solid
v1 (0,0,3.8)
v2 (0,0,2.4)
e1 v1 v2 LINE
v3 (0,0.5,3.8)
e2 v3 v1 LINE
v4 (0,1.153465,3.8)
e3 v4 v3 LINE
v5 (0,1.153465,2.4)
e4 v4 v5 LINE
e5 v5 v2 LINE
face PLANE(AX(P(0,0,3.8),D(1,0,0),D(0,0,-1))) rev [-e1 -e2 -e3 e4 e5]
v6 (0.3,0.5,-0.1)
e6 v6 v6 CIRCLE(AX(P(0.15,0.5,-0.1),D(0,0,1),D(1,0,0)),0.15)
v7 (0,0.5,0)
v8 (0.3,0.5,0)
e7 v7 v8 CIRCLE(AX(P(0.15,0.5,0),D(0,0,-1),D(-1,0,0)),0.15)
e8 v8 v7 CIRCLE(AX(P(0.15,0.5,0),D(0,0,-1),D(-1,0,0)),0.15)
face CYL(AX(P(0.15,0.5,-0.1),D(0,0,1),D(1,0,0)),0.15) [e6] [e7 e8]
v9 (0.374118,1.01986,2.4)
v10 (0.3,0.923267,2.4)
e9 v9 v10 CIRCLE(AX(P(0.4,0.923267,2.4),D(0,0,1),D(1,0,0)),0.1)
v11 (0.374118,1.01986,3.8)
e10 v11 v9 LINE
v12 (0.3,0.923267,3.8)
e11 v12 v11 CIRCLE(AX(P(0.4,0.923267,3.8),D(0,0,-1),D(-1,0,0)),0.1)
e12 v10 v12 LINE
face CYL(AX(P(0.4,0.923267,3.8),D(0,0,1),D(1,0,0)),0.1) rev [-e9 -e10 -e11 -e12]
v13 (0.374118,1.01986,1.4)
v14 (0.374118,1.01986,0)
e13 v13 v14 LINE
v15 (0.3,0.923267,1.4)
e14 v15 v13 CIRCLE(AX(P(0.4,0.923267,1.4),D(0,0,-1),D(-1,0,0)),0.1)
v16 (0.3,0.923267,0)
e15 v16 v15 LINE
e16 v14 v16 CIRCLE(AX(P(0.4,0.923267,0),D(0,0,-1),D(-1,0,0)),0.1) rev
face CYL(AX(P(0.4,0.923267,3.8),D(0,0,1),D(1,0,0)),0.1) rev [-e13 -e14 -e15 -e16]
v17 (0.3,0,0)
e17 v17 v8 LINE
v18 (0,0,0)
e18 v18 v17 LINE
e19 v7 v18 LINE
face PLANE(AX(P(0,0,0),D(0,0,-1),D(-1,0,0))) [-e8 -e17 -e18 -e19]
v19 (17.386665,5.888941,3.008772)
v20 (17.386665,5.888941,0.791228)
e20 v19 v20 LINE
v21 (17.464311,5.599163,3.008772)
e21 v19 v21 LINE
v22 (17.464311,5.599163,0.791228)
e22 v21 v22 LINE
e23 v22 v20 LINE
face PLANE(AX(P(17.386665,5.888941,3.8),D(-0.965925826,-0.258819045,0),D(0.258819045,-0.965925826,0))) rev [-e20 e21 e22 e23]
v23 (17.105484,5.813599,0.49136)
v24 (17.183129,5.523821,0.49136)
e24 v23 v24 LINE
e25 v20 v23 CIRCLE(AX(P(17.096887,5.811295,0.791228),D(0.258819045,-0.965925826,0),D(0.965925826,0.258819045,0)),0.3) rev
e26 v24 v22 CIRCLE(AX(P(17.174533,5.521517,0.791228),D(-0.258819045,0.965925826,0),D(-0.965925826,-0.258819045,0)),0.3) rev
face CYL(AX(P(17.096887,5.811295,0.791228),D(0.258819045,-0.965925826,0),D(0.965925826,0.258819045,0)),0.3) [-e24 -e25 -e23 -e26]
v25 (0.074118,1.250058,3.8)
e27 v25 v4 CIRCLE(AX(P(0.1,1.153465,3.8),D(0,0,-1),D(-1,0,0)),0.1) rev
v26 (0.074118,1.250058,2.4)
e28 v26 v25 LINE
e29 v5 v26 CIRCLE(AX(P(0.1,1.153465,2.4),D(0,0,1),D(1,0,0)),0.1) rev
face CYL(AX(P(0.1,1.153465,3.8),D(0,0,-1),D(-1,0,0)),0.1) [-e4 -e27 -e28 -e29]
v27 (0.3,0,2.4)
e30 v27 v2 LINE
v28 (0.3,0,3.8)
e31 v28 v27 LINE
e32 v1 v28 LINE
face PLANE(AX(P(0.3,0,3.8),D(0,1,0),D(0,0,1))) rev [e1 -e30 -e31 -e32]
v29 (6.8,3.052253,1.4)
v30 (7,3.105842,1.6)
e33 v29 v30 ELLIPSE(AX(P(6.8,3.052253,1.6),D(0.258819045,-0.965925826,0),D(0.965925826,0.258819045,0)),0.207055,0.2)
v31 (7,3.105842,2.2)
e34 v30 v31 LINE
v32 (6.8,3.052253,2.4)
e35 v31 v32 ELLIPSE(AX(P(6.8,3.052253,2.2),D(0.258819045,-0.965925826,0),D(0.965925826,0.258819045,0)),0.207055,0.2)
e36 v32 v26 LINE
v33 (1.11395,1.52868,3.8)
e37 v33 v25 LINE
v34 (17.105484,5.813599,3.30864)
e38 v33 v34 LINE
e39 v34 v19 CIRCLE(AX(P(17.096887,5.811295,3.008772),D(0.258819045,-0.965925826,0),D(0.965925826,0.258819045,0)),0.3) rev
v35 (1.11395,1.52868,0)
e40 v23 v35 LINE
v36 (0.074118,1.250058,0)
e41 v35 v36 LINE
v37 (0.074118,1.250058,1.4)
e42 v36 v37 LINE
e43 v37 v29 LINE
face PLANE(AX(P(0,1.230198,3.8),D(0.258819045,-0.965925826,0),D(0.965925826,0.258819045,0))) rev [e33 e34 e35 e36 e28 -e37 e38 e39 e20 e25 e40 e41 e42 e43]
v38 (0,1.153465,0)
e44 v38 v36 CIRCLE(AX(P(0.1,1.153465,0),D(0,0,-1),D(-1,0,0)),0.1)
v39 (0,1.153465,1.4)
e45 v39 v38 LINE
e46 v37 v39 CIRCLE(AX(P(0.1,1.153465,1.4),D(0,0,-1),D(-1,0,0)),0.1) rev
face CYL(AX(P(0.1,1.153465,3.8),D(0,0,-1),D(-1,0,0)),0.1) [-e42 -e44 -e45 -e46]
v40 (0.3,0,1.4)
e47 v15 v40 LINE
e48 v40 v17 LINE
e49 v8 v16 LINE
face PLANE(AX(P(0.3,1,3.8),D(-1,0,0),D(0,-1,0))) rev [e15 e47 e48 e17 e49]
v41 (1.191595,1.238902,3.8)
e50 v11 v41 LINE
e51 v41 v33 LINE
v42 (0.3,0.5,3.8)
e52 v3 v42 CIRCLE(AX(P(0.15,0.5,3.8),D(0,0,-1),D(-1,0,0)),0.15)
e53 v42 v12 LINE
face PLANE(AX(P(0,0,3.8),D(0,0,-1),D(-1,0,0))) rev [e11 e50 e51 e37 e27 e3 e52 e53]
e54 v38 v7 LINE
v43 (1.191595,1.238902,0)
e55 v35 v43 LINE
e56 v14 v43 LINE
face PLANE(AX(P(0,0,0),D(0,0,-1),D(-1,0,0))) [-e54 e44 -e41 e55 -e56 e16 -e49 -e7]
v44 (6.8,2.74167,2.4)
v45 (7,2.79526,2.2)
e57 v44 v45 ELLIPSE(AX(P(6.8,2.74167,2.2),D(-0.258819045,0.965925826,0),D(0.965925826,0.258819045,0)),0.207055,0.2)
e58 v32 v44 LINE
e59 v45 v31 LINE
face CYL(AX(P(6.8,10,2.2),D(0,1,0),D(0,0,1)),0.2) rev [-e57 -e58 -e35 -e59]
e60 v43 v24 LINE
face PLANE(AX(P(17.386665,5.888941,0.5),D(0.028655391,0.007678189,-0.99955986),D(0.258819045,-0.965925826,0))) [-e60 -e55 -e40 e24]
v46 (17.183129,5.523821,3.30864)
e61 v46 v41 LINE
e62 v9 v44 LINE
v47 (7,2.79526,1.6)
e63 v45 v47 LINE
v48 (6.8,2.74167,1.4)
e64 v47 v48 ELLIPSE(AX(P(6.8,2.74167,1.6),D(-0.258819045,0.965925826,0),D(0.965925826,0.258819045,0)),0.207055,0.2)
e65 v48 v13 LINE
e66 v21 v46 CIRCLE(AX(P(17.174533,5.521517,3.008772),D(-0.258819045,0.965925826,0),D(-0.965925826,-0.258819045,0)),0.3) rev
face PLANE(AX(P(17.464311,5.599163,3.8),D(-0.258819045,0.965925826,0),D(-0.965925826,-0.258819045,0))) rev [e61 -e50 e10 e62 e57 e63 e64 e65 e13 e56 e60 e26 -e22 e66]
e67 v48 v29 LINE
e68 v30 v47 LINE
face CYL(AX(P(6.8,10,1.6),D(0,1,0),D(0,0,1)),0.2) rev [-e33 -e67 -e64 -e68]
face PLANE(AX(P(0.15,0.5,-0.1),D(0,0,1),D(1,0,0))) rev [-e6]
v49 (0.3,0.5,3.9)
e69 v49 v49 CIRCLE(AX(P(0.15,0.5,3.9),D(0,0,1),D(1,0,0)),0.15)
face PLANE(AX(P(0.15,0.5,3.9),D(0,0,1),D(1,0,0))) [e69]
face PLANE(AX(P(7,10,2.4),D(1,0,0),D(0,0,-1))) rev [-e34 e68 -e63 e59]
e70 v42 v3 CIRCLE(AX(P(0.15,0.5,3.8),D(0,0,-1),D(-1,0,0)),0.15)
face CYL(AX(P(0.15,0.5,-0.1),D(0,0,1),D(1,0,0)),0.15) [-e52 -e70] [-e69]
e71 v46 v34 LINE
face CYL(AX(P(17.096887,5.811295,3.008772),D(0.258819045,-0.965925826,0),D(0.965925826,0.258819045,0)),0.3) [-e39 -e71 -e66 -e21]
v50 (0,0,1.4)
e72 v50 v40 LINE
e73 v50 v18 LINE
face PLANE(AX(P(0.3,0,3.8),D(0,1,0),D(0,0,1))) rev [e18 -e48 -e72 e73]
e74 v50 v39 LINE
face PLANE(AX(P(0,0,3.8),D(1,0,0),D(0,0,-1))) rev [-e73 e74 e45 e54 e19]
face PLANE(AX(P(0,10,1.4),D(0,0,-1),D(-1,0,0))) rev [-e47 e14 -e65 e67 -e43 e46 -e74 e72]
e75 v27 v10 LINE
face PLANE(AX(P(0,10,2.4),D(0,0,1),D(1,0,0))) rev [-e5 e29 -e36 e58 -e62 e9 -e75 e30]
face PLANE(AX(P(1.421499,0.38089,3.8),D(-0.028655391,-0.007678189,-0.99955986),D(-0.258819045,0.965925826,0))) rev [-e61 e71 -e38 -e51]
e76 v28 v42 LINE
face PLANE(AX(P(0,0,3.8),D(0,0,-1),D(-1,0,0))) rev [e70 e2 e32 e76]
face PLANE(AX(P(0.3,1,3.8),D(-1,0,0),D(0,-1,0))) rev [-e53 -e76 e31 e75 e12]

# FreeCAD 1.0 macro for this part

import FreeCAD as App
import Part
import Sketcher
from FreeCAD import Vector
Q = App.Units.Quantity


def edges_at(feature, points):
    """Names of the edges that pass closest to the given points."""
    edges = feature.Shape.Edges
    near = lambda p: min(range(len(edges)), key=lambda i: edges[i].distToShape(Part.Vertex(*p))[0])
    return sorted({f"Edge{near(p) + 1}" for p in points})


def add_polygon(sketch, points):
    """Adds a closed chain of lines whose ends are joined by coincident constraints."""
    first, n = sketch.GeometryCount, len(points)
    for a, b in zip(points, points[1:] + points[:1]):
        sketch.addGeometry(Part.LineSegment(App.Vector(*a, 0), App.Vector(*b, 0)), False)
    for i in range(n):
        sketch.addConstraint(Sketcher.Constraint("Coincident", first + i, 2, first + (i + 1) % n, 1))

doc = App.newDocument("Part")
body = doc.addObject("PartDesign::Body", "Body")

# Sketch on XY plane
sketch1 = body.newObject("Sketcher::SketchObject", "Sketch")
sketch1.AttachmentSupport = (doc.getObject("XY_Plane"), [""])
sketch1.MapMode = "FlatFace"
add_polygon(sketch1, [(0, 1.23), (0, 0), (0.3, 0), (0.3, 1), (17.46, 5.6), (17.39, 5.89)])  # lines 0-5
sketch1.addConstraint([
    Sketcher.Constraint("Vertical", 0),
    Sketcher.Constraint("Horizontal", 1),
    Sketcher.Constraint("Vertical", 2),
    Sketcher.Constraint("Coincident", 0, 2, -1, 1),
    Sketcher.Constraint("Perpendicular", 3, 4),
    Sketcher.Constraint("Perpendicular", 4, 5),
    Sketcher.Constraint("DistanceY", 2, 1, 2, 2, Q("1 mm")),
    Sketcher.Constraint("Angle", 3, Q("15 deg")),
    Sketcher.Constraint("Distance", 5, Q("18 mm")),
    Sketcher.Constraint("DistanceX", 1, 1, 1, 2, Q("0.3 mm")),
    Sketcher.Constraint("Distance", 4, Q("0.3 mm")),
])
pad1 = body.newObject("PartDesign::Pad", "Pad")
pad1.Profile = sketch1
pad1.Length = 3.8
doc.recompute()

chamfer = body.newObject("PartDesign::Chamfer", "Chamfer")
chamfer.Base = (pad1, edges_at(pad1, [(17.425, 5.744, 3.8), (17.425, 5.744, 0)]))
chamfer.ChamferType = "Two distances"
chamfer.Size = 0.5
chamfer.Size2 = 16.846754

# Sketch on XY plane
sketch2 = body.newObject("Sketcher::SketchObject", "Sketch001")
sketch2.AttachmentSupport = (doc.getObject("XY_Plane"), [""])
sketch2.MapMode = "FlatFace"
sketch2.AttachmentOffset = App.Placement(Vector(0, 0, 3.8), App.Rotation())
sketch2.addGeometry(Part.Circle(Vector(0.15, 0.5, 0), Vector(0, 0, 1), 0.15), False)
sketch2.addConstraint([
    Sketcher.Constraint("Diameter", 0, Q("0.3 mm")),
    Sketcher.Constraint("DistanceY", -1, 1, 0, 3, Q("0.5 mm")),
    Sketcher.Constraint("DistanceX", -1, 1, 0, 3, Q("0.15 mm")),
])
pad2 = body.newObject("PartDesign::Pad", "Pad001")
pad2.Profile = sketch2
pad2.Type = "TwoLengths"
pad2.Length = 0.1
pad2.Length2 = 3.9

# Sketch on XZ plane
sketch3 = body.newObject("Sketcher::SketchObject", "Sketch002")
sketch3.AttachmentSupport = (doc.getObject("XZ_Plane"), [""])
sketch3.MapMode = "FlatFace"
add_polygon(sketch3, [(0, 2.4), (0, 1.4), (7, 1.4), (7, 2.4)])  # lines 0-3
sketch3.addConstraint([
    Sketcher.Constraint("Vertical", 0),
    Sketcher.Constraint("Horizontal", 1),
    Sketcher.Constraint("Vertical", 2),
    Sketcher.Constraint("Horizontal", 3),
    Sketcher.Constraint("PointOnObject", 0, 2, -2),
    Sketcher.Constraint("DistanceX", 1, 1, 1, 2, Q("7 mm")),
    Sketcher.Constraint("DistanceY", 0, 2, 0, 1, Q("1 mm")),
    Sketcher.Constraint("DistanceY", -1, 1, 0, 2, Q("1.4 mm")),
])
pocket1 = body.newObject("PartDesign::Pocket", "Pocket")
pocket1.Profile = sketch3
pocket1.Length = 10
doc.recompute()

fillet = body.newObject("PartDesign::Fillet", "Fillet")
fillet.Base = (pocket1, edges_at(pocket1, [
    (0, 1.23, 3.1),
    (0.3, 1, 3.1),
    (0, 1.23, 0.7),
    (0.3, 1, 0.7),
]))
fillet.Radius = 0.1
doc.recompute()

fillet2 = body.newObject("PartDesign::Fillet", "Fillet001")
fillet2.Base = (fillet, edges_at(fillet, [(17.425, 5.744, 0.5), (17.425, 5.744, 3.3)]))
fillet2.Radius = 0.3
doc.recompute()

fillet3 = body.newObject("PartDesign::Fillet", "Fillet002")
fillet3.Base = (fillet2, edges_at(fillet2, [(7, 2.951, 2.4), (7, 2.951, 1.4)]))
fillet3.Radius = 0.2

doc.recompute()
